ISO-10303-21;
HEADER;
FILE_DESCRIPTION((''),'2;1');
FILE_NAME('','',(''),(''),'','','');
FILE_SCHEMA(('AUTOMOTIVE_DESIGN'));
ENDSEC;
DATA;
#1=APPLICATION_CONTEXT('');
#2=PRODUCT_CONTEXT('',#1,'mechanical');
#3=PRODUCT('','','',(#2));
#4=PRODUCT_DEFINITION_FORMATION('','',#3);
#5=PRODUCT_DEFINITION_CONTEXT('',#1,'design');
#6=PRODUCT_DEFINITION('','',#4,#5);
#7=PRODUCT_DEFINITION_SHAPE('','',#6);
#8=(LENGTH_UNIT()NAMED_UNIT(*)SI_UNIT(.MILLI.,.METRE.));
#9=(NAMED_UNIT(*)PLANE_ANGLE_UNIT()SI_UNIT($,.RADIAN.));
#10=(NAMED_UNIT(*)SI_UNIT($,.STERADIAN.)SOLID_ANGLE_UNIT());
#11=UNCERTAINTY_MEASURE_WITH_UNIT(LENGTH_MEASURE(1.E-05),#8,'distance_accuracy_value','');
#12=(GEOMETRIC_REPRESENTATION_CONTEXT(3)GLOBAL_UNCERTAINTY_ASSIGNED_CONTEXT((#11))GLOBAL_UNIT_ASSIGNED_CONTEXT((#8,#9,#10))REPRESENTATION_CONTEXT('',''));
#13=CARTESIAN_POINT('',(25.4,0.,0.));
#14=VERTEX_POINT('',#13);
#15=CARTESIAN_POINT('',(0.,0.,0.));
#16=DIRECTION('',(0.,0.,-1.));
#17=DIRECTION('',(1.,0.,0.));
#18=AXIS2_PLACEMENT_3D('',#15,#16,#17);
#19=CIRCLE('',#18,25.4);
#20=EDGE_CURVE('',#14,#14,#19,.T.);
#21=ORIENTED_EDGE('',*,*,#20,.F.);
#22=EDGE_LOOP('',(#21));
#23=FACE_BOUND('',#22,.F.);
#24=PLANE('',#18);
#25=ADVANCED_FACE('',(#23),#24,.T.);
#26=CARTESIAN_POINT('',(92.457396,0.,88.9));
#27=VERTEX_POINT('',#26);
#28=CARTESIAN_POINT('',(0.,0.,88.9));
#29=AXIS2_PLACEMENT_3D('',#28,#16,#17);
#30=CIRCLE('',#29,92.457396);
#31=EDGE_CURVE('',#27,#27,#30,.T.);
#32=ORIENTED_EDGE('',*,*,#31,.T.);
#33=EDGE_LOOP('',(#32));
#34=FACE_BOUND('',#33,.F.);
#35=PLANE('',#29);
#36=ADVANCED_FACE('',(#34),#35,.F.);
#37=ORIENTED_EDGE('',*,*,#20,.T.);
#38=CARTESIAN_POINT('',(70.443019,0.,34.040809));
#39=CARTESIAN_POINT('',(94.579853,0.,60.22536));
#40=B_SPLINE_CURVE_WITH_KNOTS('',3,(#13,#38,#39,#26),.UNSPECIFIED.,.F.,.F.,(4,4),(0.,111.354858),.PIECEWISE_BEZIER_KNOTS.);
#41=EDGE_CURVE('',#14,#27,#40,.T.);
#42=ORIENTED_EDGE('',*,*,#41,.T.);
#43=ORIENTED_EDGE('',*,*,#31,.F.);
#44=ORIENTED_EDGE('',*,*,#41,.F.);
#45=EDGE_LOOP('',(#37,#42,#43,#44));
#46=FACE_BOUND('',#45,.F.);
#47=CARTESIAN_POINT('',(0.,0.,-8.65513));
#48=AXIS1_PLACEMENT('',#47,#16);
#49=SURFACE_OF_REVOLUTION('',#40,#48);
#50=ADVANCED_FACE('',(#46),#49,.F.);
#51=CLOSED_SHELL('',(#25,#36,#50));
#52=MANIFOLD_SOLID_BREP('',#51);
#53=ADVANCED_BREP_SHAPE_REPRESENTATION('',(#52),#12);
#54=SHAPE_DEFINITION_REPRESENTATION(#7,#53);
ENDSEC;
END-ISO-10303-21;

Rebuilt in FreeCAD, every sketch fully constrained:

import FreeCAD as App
import Part
import Sketcher

V = App.Vector

doc = App.newDocument("Part")
params = doc.addObject("Spreadsheet::Sheet", "Params")
for row, (alias, value) in enumerate([
    ("revolution_angle", "360 deg"),
], start=1):
    params.set(f"A{row}", alias)
    params.set(f"B{row}", "=" + value)
    params.setAlias(f"B{row}", alias)

body = doc.addObject("PartDesign::Body", "Body")

# Sketch on XZ plane
sketch1 = doc.addObject("Sketcher::SketchObject", "Sketch")
body.addObject(sketch1)
sketch1.AttachmentSupport = (doc.XZ_Plane, [""])
sketch1.MapMode = "FlatFace"
sketch1.addGeometry([
    Part.LineSegment(V(0, 88.9, 0), V(0, 0, 0)),
    Part.LineSegment(V(0, 0, 0), V(25.4, 0, 0)),
    Part.BSplineCurve([V(25.4, 0, 0), V(70.443019, 34.040809, 0), V(94.579853, 60.22536, 0), V(92.457396, 88.9, 0)], [4, 4], [0, 111.354858], False, 3, [1, 1, 1, 1], False),
    Part.LineSegment(V(92.457396, 88.9, 0), V(0, 88.9, 0)),
], False)
sketch1.addConstraint([
    Sketcher.Constraint("Block", 2),
    Sketcher.Constraint("Coincident", 0, 2, 1, 1),
    Sketcher.Constraint("Coincident", 1, 2, 2, 1),
    Sketcher.Constraint("Coincident", 2, 2, 3, 1),
    Sketcher.Constraint("Coincident", 3, 2, 0, 1),
    Sketcher.Constraint("Vertical", 0),
    Sketcher.Constraint("Horizontal", 1),
    Sketcher.Constraint("Horizontal", 3),
    Sketcher.Constraint("PointOnObject", 3, 2, -2),
])
revolution = doc.addObject("PartDesign::Revolution", "Revolution")
body.addObject(revolution)
revolution.Profile = sketch1
revolution.ReferenceAxis = (sketch1, ["V_Axis"])
revolution.setExpression("Angle", "Params.revolution_angle")

doc.recompute()
